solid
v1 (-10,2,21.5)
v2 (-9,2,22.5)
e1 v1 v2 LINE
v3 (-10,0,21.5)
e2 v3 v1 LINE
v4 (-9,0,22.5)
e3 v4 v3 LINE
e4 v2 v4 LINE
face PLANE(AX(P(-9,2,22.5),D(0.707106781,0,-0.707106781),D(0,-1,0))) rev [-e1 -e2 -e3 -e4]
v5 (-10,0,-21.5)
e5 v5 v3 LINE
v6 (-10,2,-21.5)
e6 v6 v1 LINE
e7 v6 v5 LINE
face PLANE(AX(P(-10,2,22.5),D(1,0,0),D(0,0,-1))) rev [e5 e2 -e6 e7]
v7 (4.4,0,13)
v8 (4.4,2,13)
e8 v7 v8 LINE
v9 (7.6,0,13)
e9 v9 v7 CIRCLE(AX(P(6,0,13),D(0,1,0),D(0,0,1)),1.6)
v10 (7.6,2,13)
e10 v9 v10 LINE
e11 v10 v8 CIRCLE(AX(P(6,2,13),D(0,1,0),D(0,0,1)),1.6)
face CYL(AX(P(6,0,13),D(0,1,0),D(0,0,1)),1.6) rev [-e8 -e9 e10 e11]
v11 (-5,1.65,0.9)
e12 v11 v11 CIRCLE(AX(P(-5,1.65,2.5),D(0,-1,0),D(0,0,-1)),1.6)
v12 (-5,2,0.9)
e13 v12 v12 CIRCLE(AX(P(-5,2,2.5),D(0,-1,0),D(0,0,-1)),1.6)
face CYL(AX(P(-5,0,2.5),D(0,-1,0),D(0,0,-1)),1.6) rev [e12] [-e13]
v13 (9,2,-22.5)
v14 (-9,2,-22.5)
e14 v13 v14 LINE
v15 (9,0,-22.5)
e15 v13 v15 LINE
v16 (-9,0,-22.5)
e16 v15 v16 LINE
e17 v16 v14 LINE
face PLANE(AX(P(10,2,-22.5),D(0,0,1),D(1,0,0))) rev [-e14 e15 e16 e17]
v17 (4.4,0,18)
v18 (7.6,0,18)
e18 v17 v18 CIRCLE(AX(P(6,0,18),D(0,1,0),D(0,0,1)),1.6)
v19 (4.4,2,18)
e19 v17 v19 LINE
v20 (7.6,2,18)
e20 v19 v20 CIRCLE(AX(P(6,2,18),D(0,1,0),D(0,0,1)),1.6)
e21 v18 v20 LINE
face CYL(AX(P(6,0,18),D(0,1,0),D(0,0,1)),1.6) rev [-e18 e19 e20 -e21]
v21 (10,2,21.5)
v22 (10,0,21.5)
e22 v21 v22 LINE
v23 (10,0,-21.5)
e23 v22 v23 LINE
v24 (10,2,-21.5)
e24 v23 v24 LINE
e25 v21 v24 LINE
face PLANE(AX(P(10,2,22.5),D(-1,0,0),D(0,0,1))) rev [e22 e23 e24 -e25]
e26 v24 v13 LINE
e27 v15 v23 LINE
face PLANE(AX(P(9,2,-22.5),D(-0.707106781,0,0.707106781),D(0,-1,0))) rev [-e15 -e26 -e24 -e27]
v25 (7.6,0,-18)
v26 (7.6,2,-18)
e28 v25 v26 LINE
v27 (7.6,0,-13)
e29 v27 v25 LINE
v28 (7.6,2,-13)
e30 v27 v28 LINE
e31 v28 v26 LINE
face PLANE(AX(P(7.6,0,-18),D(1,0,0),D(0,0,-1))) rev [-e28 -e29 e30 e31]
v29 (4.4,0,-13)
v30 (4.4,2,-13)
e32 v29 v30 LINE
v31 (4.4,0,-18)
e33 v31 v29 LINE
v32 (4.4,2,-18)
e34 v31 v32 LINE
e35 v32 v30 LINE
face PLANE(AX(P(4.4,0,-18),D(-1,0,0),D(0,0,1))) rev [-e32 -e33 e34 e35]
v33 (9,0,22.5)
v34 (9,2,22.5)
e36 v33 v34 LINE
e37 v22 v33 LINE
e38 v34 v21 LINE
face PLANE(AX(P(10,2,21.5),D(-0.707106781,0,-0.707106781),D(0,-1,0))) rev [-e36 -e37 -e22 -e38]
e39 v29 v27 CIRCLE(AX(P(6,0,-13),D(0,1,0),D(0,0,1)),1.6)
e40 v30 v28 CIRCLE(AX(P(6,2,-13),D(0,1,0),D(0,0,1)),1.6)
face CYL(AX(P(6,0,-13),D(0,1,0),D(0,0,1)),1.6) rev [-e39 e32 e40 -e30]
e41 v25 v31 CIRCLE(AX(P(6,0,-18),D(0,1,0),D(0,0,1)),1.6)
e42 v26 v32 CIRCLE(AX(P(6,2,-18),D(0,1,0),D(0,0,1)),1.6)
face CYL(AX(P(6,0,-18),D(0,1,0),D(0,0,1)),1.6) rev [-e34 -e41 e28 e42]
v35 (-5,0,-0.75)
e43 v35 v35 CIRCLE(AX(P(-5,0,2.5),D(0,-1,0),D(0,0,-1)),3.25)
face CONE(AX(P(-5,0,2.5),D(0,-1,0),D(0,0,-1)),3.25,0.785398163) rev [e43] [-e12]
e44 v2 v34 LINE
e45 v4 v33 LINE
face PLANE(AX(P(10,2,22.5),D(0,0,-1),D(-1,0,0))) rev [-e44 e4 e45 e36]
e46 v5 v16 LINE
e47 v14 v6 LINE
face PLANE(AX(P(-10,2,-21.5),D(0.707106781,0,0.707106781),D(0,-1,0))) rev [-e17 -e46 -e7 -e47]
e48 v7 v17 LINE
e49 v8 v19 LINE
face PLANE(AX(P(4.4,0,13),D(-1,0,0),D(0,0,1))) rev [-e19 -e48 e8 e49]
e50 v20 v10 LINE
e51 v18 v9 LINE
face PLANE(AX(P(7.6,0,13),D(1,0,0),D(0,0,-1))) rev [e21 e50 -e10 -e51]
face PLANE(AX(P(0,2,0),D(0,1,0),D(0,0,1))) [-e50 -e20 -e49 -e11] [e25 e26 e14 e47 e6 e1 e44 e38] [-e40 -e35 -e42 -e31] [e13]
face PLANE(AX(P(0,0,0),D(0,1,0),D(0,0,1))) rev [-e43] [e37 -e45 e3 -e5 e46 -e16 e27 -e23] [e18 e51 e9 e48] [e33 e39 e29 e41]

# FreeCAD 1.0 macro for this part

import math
import FreeCAD as App
import Part
import Sketcher
from FreeCAD import Vector
Q = App.Units.Quantity


def edges_at(feature, points):
    """Names of the edges that pass closest to the given points."""
    edges = feature.Shape.Edges
    near = lambda p: min(range(len(edges)), key=lambda i: edges[i].distToShape(Part.Vertex(*p))[0])
    return sorted({f"Edge{near(p) + 1}" for p in points})

doc = App.newDocument("Part")
params = doc.addObject("Spreadsheet::Sheet", "Params")
for row, (alias, value) in enumerate([
    ("sketch1_width", "20 mm"),
    ("sketch1_height", "45 mm"),
    ("pad1_length", "2 mm"),
    ("sketch2_radius", "1.6 mm"),
    ("sketch2_height", "5 mm"),
    ("sketch3_width", "2 mm"),
    ("sketch3_height", "1.6 mm"),
    ("sketch3_width2", "0.35 mm"),
    ("groove_angle", "360 deg"),
    ("chamfer_size", "1 mm"),
], start=1):
    params.set(f"A{row}", alias)
    params.set(f"B{row}", "=" + value)
    params.setAlias(f"B{row}", alias)

body = doc.addObject("PartDesign::Body", "Body")

# Sketch on XZ plane
sketch1 = doc.addObject("Sketcher::SketchObject", "Sketch")
body.addObject(sketch1)
sketch1.AttachmentSupport = (doc.XZ_Plane, [""])
sketch1.MapMode = "FlatFace"
sketch1.addGeometry([
    Part.LineSegment(Vector(-10, -22.5, 0), Vector(-10, 22.5, 0)),
    Part.LineSegment(Vector(-10, 22.5, 0), Vector(10, 22.5, 0)),
    Part.LineSegment(Vector(10, 22.5, 0), Vector(10, -22.5, 0)),
    Part.LineSegment(Vector(10, -22.5, 0), Vector(-10, -22.5, 0)),
], False)
sketch1.addConstraint([
    Sketcher.Constraint("Coincident", 0, 2, 1, 1),
    Sketcher.Constraint("Coincident", 1, 2, 2, 1),
    Sketcher.Constraint("Coincident", 2, 2, 3, 1),
    Sketcher.Constraint("Coincident", 3, 2, 0, 1),
    Sketcher.Constraint("Vertical", 0),
    Sketcher.Constraint("Horizontal", 1),
    Sketcher.Constraint("Vertical", 2),
    Sketcher.Constraint("Horizontal", 3),
    Sketcher.Constraint("Symmetric", 0, 2, 2, 2, -1, 1),
    Sketcher.Constraint("DistanceX", 1, 1, 1, 2, Q("20 mm")),
    Sketcher.Constraint("DistanceY", 0, 1, 0, 2, Q("45 mm")),
])
sketch1.setExpression("Constraints[9]", "Params.sketch1_width")
sketch1.setExpression("Constraints[10]", "Params.sketch1_height")
pad1 = doc.addObject("PartDesign::Pad", "Pad")
body.addObject(pad1)
pad1.Profile = sketch1
pad1.setExpression("Length", "Params.pad1_length")
pad1.Reversed = True

# Sketch on XZ plane
sketch2 = doc.addObject("Sketcher::SketchObject", "Sketch001")
body.addObject(sketch2)
sketch2.AttachmentSupport = (doc.XZ_Plane, [""])
sketch2.MapMode = "FlatFace"
sketch2.AttachmentOffset = App.Placement(Vector(0, 0, -2), App.Rotation())
sketch2.addGeometry([
    Part.LineSegment(Vector(7.6, -13, 0), Vector(7.6, -18, 0)),  # 0
    Part.ArcOfCircle(Part.Circle(Vector(6, -18, 0), Vector(0, 0, 1), 1.6), math.radians(180), math.radians(360)),  # 1
    Part.LineSegment(Vector(4.4, -18, 0), Vector(4.4, -13, 0)),  # 2
    Part.ArcOfCircle(Part.Circle(Vector(6, -13, 0), Vector(0, 0, 1), 1.6), math.radians(0), math.radians(180)),  # 3
    Part.LineSegment(Vector(7.6, 18, 0), Vector(7.6, 13, 0)),  # 4
    Part.ArcOfCircle(Part.Circle(Vector(6, 13, 0), Vector(0, 0, 1), 1.6), math.radians(180), math.radians(360)),  # 5
    Part.LineSegment(Vector(4.4, 13, 0), Vector(4.4, 18, 0)),  # 6
    Part.ArcOfCircle(Part.Circle(Vector(6, 18, 0), Vector(0, 0, 1), 1.6), math.radians(0), math.radians(180)),  # 7
], False)
sketch2.addConstraint([
    Sketcher.Constraint("Tangent", 0, 2, 1, 2),
    Sketcher.Constraint("Tangent", 1, 1, 2, 1),
    Sketcher.Constraint("Tangent", 2, 2, 3, 2),
    Sketcher.Constraint("Tangent", 3, 1, 0, 1),
    Sketcher.Constraint("Tangent", 4, 2, 5, 2),
    Sketcher.Constraint("Tangent", 5, 1, 6, 1),
    Sketcher.Constraint("Tangent", 6, 2, 7, 2),
    Sketcher.Constraint("Tangent", 7, 1, 4, 1),
    Sketcher.Constraint("Vertical", 0),
    Sketcher.Constraint("Vertical", 2),
    Sketcher.Constraint("Vertical", 4),
    Sketcher.Constraint("Vertical", 6),
    Sketcher.Constraint("Equal", 3, 5),
    Sketcher.Constraint("Symmetric", 3, 3, 5, 3, -1),
    Sketcher.Constraint("Equal", 2, 4),
    Sketcher.Constraint("Radius", 1, Q("1.6 mm")),
    Sketcher.Constraint("DistanceY", 0, 2, 0, 1, Q("5 mm")),
    Sketcher.Constraint("DistanceX", -1, 1, 1, 3, Q("6 mm")),
    Sketcher.Constraint("DistanceY", 1, 3, -1, 1, Q("18 mm")),
])
sketch2.setExpression("Constraints[15]", "Params.sketch2_radius")
sketch2.setExpression("Constraints[16]", "Params.sketch2_height")
pocket1 = doc.addObject("PartDesign::Pocket", "Pocket")
body.addObject(pocket1)
pocket1.Profile = sketch2
pocket1.Type = "ThroughAll"
pocket1.Reversed = True

# Sketch on YZ plane
sketch3 = doc.addObject("Sketcher::SketchObject", "Sketch002")
body.addObject(sketch3)
sketch3.AttachmentSupport = (doc.YZ_Plane, [""])
sketch3.MapMode = "FlatFace"
sketch3.AttachmentOffset = App.Placement(Vector(0, 0, -5), App.Rotation())
sketch3.addGeometry([
    Part.LineSegment(Vector(2, 2.5, 0), Vector(0, 2.5, 0)),  # 0
    Part.LineSegment(Vector(0, 2.5, 0), Vector(0, -0.75, 0)),  # 1
    Part.LineSegment(Vector(0, -0.75, 0), Vector(1.65, 0.9, 0)),  # 2
    Part.LineSegment(Vector(1.65, 0.9, 0), Vector(2, 0.9, 0)),  # 3
    Part.LineSegment(Vector(2, 0.9, 0), Vector(2, 2.5, 0)),  # 4
], False)
sketch3.addGeometry(Part.LineSegment(Vector(0, 2.5, 0), Vector(2, 2.5, 0)), True)  # axis
sketch3.addConstraint([
    Sketcher.Constraint("Coincident", 0, 2, 1, 1),
    Sketcher.Constraint("Coincident", 1, 2, 2, 1),
    Sketcher.Constraint("Coincident", 2, 2, 3, 1),
    Sketcher.Constraint("Coincident", 3, 2, 4, 1),
    Sketcher.Constraint("Coincident", 4, 2, 0, 1),
    Sketcher.Constraint("Horizontal", 0),
    Sketcher.Constraint("Vertical", 1),
    Sketcher.Constraint("Horizontal", 3),
    Sketcher.Constraint("Vertical", 4),
    Sketcher.Constraint("Horizontal", 5),
    Sketcher.Constraint("Coincident", 5, 1, 0, 2),
    Sketcher.Constraint("PointOnObject", 0, 2, -2),
    Sketcher.Constraint("Vertical", 3, 2, 5, 2),
    Sketcher.Constraint("DistanceX", 0, 2, 0, 1, Q("2 mm")),
    Sketcher.Constraint("Angle", 2, Q("45 deg")),
    Sketcher.Constraint("DistanceY", 4, 1, 4, 2, Q("1.6 mm")),
    Sketcher.Constraint("DistanceX", 3, 1, 3, 2, Q("0.35 mm")),
    Sketcher.Constraint("DistanceY", -1, 1, 0, 2, Q("2.5 mm")),
])
sketch3.setExpression("Constraints[13]", "Params.sketch3_width")
sketch3.setExpression("Constraints[15]", "Params.sketch3_height")
sketch3.setExpression("Constraints[16]", "Params.sketch3_width2")
groove = doc.addObject("PartDesign::Groove", "Groove")
body.addObject(groove)
groove.Profile = sketch3
groove.ReferenceAxis = (sketch3, ["Axis0"])
groove.setExpression("Angle", "Params.groove_angle")
doc.recompute()

chamfer = doc.addObject("PartDesign::Chamfer", "Chamfer")
body.addObject(chamfer)
chamfer.Base = (groove, edges_at(groove, [
    (-10, 1, -22.5),
    (10, 1, -22.5),
    (10, 1, 22.5),
    (-10, 1, 22.5),
]))
chamfer.setExpression("Size", "Params.chamfer_size")

doc.recompute()
